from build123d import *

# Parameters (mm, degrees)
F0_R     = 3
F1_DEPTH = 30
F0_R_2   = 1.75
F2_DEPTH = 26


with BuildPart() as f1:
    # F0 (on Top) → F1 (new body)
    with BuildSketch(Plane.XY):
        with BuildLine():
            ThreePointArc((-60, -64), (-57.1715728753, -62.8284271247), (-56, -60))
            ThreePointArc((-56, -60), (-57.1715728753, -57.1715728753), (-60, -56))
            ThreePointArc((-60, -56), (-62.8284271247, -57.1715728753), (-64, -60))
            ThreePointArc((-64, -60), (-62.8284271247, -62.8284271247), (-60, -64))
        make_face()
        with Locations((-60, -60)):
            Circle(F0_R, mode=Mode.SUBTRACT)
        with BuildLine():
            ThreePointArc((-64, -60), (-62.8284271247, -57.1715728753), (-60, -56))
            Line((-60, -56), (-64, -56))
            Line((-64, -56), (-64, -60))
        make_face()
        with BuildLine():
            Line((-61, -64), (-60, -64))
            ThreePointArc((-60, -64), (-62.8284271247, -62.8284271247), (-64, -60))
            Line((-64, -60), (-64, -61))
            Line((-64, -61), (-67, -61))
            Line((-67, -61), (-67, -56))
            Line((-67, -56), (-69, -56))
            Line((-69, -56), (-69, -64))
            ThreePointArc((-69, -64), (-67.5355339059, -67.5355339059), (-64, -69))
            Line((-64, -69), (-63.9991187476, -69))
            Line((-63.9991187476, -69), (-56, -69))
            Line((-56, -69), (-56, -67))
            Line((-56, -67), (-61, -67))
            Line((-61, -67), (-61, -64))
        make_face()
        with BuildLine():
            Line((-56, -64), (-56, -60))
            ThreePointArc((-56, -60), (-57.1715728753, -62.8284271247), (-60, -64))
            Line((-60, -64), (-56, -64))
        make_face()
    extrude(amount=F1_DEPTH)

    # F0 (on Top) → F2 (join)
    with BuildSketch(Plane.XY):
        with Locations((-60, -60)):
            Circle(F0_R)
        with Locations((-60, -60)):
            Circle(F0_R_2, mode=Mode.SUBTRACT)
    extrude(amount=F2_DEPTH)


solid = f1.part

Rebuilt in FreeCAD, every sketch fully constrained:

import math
import FreeCAD as App
import Part
import Sketcher
from FreeCAD import Vector

doc = App.newDocument("Part")
params = doc.addObject("Spreadsheet::Sheet", "Params")
for row, (alias, value) in enumerate([
    ("sketch1_diameter", "6 mm"),
    ("sketch1_radius", "4 mm"),
    ("sketch1_radius2", "5 mm"),
    ("sketch1_width", "4 mm"),
    ("sketch1_width2", "3 mm"),
    ("pad1_length", "30 mm"),
    ("sketch2_diameter", "6 mm"),
    ("sketch2_diameter2", "3.5 mm"),
    ("pad2_length", "26 mm"),
], start=1):
    params.set(f"A{row}", alias)
    params.set(f"B{row}", "=" + value)
    params.setAlias(f"B{row}", alias)

body = doc.addObject("PartDesign::Body", "Body")

sketch1 = body.newObject("Sketcher::SketchObject", "Sketch")
sketch1.AttachmentSupport = (doc.getObject("XY_Plane"), [""])
sketch1.MapMode = "FlatFace"
sketch1.addGeometry(Part.ArcOfCircle(Part.Circle(Vector(-60, -60, 0), Vector(0, 0, 1), 4), math.radians(0), math.radians(90)), False)
sketch1.addGeometry(Part.LineSegment(Vector(-60, -56, 0), Vector(-64, -56, 0)), False)
sketch1.addGeometry(Part.LineSegment(Vector(-64, -56, 0), Vector(-64, -61, 0)), False)
sketch1.addGeometry(Part.LineSegment(Vector(-64, -61, 0), Vector(-67, -61, 0)), False)
sketch1.addGeometry(Part.LineSegment(Vector(-67, -61, 0), Vector(-67, -56, 0)), False)
sketch1.addGeometry(Part.LineSegment(Vector(-67, -56, 0), Vector(-69, -56, 0)), False)
sketch1.addGeometry(Part.LineSegment(Vector(-69, -56, 0), Vector(-69, -64, 0)), False)
sketch1.addGeometry(Part.ArcOfCircle(Part.Circle(Vector(-64, -64, 0), Vector(0, 0, 1), 5), math.radians(180), math.radians(270)), False)
sketch1.addGeometry(Part.LineSegment(Vector(-64, -69, 0), Vector(-56, -69, 0)), False)
sketch1.addGeometry(Part.LineSegment(Vector(-56, -69, 0), Vector(-56, -67, 0)), False)
sketch1.addGeometry(Part.LineSegment(Vector(-56, -67, 0), Vector(-61, -67, 0)), False)
sketch1.addGeometry(Part.LineSegment(Vector(-61, -67, 0), Vector(-61, -64, 0)), False)
sketch1.addGeometry(Part.LineSegment(Vector(-61, -64, 0), Vector(-56, -64, 0)), False)
sketch1.addGeometry(Part.LineSegment(Vector(-56, -64, 0), Vector(-56, -60, 0)), False)
sketch1.addGeometry(Part.Circle(Vector(-60, -60, 0), Vector(0, 0, 1), 3), False)
sketch1.addConstraint(Sketcher.Constraint("Tangent", 0, 2, 1, 1))
sketch1.addConstraint(Sketcher.Constraint("Coincident", 1, 2, 2, 1))
sketch1.addConstraint(Sketcher.Constraint("Coincident", 2, 2, 3, 1))
sketch1.addConstraint(Sketcher.Constraint("Coincident", 3, 2, 4, 1))
sketch1.addConstraint(Sketcher.Constraint("Coincident", 4, 2, 5, 1))
sketch1.addConstraint(Sketcher.Constraint("Coincident", 5, 2, 6, 1))
sketch1.addConstraint(Sketcher.Constraint("Tangent", 6, 2, 7, 1))
sketch1.addConstraint(Sketcher.Constraint("Tangent", 7, 2, 8, 1))
sketch1.addConstraint(Sketcher.Constraint("Coincident", 8, 2, 9, 1))
sketch1.addConstraint(Sketcher.Constraint("Coincident", 9, 2, 10, 1))
sketch1.addConstraint(Sketcher.Constraint("Coincident", 10, 2, 11, 1))
sketch1.addConstraint(Sketcher.Constraint("Coincident", 11, 2, 12, 1))
sketch1.addConstraint(Sketcher.Constraint("Coincident", 12, 2, 13, 1))
sketch1.addConstraint(Sketcher.Constraint("Tangent", 13, 2, 0, 1))
sketch1.addConstraint(Sketcher.Constraint("Horizontal", 1))
sketch1.addConstraint(Sketcher.Constraint("Vertical", 2))
sketch1.addConstraint(Sketcher.Constraint("Horizontal", 3))
sketch1.addConstraint(Sketcher.Constraint("Vertical", 4))
sketch1.addConstraint(Sketcher.Constraint("Horizontal", 5))
sketch1.addConstraint(Sketcher.Constraint("Vertical", 6))
sketch1.addConstraint(Sketcher.Constraint("Horizontal", 8))
sketch1.addConstraint(Sketcher.Constraint("Vertical", 9))
sketch1.addConstraint(Sketcher.Constraint("Horizontal", 10))
sketch1.addConstraint(Sketcher.Constraint("Vertical", 11))
sketch1.addConstraint(Sketcher.Constraint("Horizontal", 12))
sketch1.addConstraint(Sketcher.Constraint("Vertical", 13))
sketch1.addConstraint(Sketcher.Constraint("Coincident", 14, 3, 0, 3))
sketch1.addConstraint(Sketcher.Constraint("Horizontal", 1, 2, 4, 2))
sketch1.addConstraint(Sketcher.Constraint("Horizontal", 6, 2, 11, 2))
sketch1.addConstraint(Sketcher.Constraint("Vertical", 7, 3, 1, 2))
sketch1.addConstraint(Sketcher.Constraint("Vertical", 9, 2, 12, 2))
sketch1.addConstraint(Sketcher.Constraint("Equal", 12, 2))
sketch1.addConstraint(Sketcher.Constraint("Equal", 8, 6))
sketch1.addConstraint(Sketcher.Constraint("Equal", 5, 9))
sketch1.addConstraint(Sketcher.Constraint("Diameter", 14, 6.0))
sketch1.addConstraint(Sketcher.Constraint("Radius", 0, 4.0))
sketch1.addConstraint(Sketcher.Constraint("Radius", 7, 5.0))
sketch1.addConstraint(Sketcher.Constraint("DistanceX", 1, 2, 1, 1, 4.0))
sketch1.addConstraint(Sketcher.Constraint("DistanceX", 3, 2, 3, 1, 3.0))
sketch1.addConstraint(Sketcher.Constraint("DistanceX", 10, 2, 10, 1, 5.0))
sketch1.addConstraint(Sketcher.Constraint("DistanceX", 0, 3, -1, 1, 60.0))
sketch1.addConstraint(Sketcher.Constraint("DistanceY", 0, 3, -1, 1, 60.0))
sketch1.setExpression("Constraints[34]", "Params.sketch1_diameter")
sketch1.setExpression("Constraints[35]", "Params.sketch1_radius")
sketch1.setExpression("Constraints[36]", "Params.sketch1_radius2")
sketch1.setExpression("Constraints[37]", "Params.sketch1_width")
sketch1.setExpression("Constraints[38]", "Params.sketch1_width2")
pad1 = body.newObject("PartDesign::Pad", "Pad")
pad1.Profile = sketch1
pad1.setExpression("Length", "Params.pad1_length")

sketch2 = body.newObject("Sketcher::SketchObject", "Sketch001")
sketch2.AttachmentSupport = (doc.getObject("XY_Plane"), [""])
sketch2.MapMode = "FlatFace"
sketch2.addGeometry(Part.Circle(Vector(-60, -60, 0), Vector(0, 0, 1), 3), False)
sketch2.addGeometry(Part.Circle(Vector(-60, -60, 0), Vector(0, 0, 1), 1.8), False)
sketch2.addConstraint(Sketcher.Constraint("Coincident", 1, 3, 0, 3))
sketch2.addConstraint(Sketcher.Constraint("Diameter", 0, 6.0))
sketch2.addConstraint(Sketcher.Constraint("Diameter", 1, 3.5))
sketch2.addConstraint(Sketcher.Constraint("DistanceX", 0, 3, -1, 1, 60.0))
sketch2.addConstraint(Sketcher.Constraint("DistanceY", 0, 3, -1, 1, 60.0))
sketch2.setExpression("Constraints[1]", "Params.sketch2_diameter")
sketch2.setExpression("Constraints[2]", "Params.sketch2_diameter2")
pad2 = body.newObject("PartDesign::Pad", "Pad001")
pad2.Profile = sketch2
pad2.setExpression("Length", "Params.pad2_length")

doc.recompute()
